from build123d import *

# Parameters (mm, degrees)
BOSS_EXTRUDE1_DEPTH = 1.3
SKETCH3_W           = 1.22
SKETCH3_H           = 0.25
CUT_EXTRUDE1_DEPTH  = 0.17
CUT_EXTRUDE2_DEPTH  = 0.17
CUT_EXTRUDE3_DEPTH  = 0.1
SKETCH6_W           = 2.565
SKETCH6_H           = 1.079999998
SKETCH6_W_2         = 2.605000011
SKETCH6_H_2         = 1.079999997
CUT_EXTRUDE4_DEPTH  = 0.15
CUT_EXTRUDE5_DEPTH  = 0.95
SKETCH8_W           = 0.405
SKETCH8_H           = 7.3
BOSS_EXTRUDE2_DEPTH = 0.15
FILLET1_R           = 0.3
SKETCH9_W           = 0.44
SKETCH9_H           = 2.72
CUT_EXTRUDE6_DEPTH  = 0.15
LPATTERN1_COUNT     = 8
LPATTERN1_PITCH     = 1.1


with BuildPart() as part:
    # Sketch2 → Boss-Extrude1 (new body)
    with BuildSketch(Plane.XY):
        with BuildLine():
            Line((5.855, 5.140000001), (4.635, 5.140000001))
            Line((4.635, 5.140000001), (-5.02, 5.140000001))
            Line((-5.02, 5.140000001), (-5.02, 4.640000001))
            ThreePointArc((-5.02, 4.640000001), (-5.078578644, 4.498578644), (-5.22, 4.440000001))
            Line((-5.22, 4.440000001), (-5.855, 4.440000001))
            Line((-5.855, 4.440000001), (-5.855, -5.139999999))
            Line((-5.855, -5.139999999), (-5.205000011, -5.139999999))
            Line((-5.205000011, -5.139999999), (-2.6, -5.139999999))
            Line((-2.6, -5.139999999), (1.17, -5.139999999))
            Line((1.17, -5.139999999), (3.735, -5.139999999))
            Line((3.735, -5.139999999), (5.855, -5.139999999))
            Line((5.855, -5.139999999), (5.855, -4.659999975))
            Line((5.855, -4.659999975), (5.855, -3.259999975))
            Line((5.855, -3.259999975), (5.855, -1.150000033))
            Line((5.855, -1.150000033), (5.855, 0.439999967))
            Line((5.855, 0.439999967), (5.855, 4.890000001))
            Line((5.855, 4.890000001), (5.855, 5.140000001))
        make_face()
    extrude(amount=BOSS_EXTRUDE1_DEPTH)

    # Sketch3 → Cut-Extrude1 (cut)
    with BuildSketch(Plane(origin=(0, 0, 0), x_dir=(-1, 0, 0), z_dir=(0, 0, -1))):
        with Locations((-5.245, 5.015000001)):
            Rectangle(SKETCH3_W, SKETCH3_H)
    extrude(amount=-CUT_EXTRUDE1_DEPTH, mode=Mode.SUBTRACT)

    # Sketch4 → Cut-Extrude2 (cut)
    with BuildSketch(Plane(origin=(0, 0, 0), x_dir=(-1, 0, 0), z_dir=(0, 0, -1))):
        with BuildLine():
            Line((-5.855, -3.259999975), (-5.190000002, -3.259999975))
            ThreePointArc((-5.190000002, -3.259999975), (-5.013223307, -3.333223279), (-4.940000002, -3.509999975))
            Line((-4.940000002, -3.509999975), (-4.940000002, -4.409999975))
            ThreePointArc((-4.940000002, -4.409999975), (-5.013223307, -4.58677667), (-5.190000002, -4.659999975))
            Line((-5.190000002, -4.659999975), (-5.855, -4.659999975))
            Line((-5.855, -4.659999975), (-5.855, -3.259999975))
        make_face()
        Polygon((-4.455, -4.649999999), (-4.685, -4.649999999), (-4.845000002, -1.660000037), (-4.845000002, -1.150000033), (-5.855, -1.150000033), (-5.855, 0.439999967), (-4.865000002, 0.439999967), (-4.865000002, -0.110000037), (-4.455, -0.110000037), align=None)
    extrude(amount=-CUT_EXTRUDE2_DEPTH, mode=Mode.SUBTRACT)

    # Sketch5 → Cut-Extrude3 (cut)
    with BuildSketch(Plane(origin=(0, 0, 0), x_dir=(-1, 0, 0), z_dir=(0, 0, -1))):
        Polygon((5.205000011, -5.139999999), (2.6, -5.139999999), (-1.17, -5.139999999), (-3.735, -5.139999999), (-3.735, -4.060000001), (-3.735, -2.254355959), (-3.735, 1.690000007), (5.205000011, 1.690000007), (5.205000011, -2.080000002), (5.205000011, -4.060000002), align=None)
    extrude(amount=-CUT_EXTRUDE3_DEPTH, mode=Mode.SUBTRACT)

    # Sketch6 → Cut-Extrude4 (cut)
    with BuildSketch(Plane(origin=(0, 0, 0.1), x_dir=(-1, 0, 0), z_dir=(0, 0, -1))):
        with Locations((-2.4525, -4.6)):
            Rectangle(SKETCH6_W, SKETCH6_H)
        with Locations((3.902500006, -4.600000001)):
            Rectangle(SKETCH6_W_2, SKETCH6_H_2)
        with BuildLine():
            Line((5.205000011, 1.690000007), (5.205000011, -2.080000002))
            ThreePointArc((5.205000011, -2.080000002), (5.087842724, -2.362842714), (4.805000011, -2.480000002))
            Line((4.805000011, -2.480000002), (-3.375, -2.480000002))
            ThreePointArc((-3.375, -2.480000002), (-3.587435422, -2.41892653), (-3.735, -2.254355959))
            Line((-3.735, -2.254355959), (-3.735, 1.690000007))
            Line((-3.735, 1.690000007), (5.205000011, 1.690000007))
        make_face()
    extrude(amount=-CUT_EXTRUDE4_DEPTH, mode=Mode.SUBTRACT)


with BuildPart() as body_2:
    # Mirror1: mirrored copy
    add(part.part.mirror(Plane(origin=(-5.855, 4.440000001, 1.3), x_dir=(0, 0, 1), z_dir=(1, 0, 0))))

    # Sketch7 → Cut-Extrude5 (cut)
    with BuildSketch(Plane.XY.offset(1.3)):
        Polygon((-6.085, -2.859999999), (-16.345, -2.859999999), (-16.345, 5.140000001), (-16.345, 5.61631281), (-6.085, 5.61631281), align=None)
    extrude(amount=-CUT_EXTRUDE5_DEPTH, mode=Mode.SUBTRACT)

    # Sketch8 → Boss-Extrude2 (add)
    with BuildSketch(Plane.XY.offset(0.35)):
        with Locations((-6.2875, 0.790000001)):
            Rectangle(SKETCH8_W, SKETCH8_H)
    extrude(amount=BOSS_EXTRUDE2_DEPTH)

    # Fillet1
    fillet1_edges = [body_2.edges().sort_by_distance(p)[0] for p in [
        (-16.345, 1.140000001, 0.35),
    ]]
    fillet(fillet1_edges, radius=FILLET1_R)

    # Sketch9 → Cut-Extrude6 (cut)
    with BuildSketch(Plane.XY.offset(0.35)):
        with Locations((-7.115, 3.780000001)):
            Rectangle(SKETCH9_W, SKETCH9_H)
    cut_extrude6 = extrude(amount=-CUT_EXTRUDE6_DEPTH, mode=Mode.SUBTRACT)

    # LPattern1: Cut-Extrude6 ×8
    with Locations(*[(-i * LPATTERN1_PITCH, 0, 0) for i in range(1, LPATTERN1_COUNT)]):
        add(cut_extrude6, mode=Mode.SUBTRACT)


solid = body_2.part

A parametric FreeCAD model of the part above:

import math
import FreeCAD as App
import Part
import Sketcher
Q = App.Units.Quantity


def edges_at(feature, points):
    """Names of the edges that pass closest to the given points."""
    edges = feature.Shape.Edges
    near = lambda p: min(range(len(edges)), key=lambda i: edges[i].distToShape(Part.Vertex(*p))[0])
    return sorted({f"Edge{near(p) + 1}" for p in points})

doc = App.newDocument("Part")
body = doc.addObject("PartDesign::Body", "Body")

sketch1 = doc.addObject("Sketcher::SketchObject", "Sketch")
body.addObject(sketch1)
sketch1.AttachmentSupport = (doc.XY_Plane, [""])
sketch1.MapMode = "FlatFace"
sketch1.addGeometry([
    Part.LineSegment(App.Vector(5.86, 5.14, 0), App.Vector(-5.02, 5.14, 0)),
    Part.LineSegment(App.Vector(-5.02, 5.14, 0), App.Vector(-5.02, 4.64, 0)),
    Part.ArcOfCircle(Part.Circle(App.Vector(-5.22, 4.64, 0), App.Vector(0, 0, 1), 0.2), math.radians(-90), math.radians(0)),
    Part.LineSegment(App.Vector(-5.22, 4.44, 0), App.Vector(-5.86, 4.44, 0)),
    Part.LineSegment(App.Vector(-5.86, 4.44, 0), App.Vector(-5.86, -5.14, 0)),
    Part.LineSegment(App.Vector(-5.86, -5.14, 0), App.Vector(5.86, -5.14, 0)),
    Part.LineSegment(App.Vector(5.86, -5.14, 0), App.Vector(5.86, 5.14, 0)),
], False)
sketch1.addConstraint([
    Sketcher.Constraint("Coincident", 0, 2, 1, 1),
    Sketcher.Constraint("Tangent", 1, 2, 2, 2),
    Sketcher.Constraint("Tangent", 2, 1, 3, 1),
    Sketcher.Constraint("Coincident", 3, 2, 4, 1),
    Sketcher.Constraint("Coincident", 4, 2, 5, 1),
    Sketcher.Constraint("Coincident", 5, 2, 6, 1),
    Sketcher.Constraint("Coincident", 6, 2, 0, 1),
    Sketcher.Constraint("Horizontal", 0),
    Sketcher.Constraint("Vertical", 1),
    Sketcher.Constraint("Horizontal", 3),
    Sketcher.Constraint("Vertical", 4),
    Sketcher.Constraint("Horizontal", 5),
    Sketcher.Constraint("Vertical", 6),
    Sketcher.Constraint("Symmetric", 4, 2, 6, 2, -1, 1),
    Sketcher.Constraint("Radius", 2, Q("0.2 mm")),
    Sketcher.Constraint("DistanceY", 1, 2, 1, 1, Q("0.5 mm")),
    Sketcher.Constraint("DistanceX", 5, 1, 5, 2, Q("11.71 mm")),
    Sketcher.Constraint("DistanceY", 4, 2, 4, 1, Q("9.58 mm")),
    Sketcher.Constraint("DistanceX", 0, 2, 0, 1, Q("10.875 mm")),
])
pad1 = doc.addObject("PartDesign::Pad", "Pad")
body.addObject(pad1)
pad1.Profile = sketch1
pad1.Length = 1.3

sketch2 = doc.addObject("Sketcher::SketchObject", "Sketch001")
body.addObject(sketch2)
sketch2.AttachmentSupport = (doc.XY_Plane, [""])
sketch2.MapMode = "FlatFace"
sketch2.addGeometry([
    Part.LineSegment(App.Vector(5.86, 5.14, 0), App.Vector(5.86, 4.89, 0)),
    Part.LineSegment(App.Vector(5.86, 4.89, 0), App.Vector(4.63, 4.89, 0)),
    Part.LineSegment(App.Vector(4.63, 4.89, 0), App.Vector(4.63, 5.14, 0)),
    Part.LineSegment(App.Vector(4.63, 5.14, 0), App.Vector(5.86, 5.14, 0)),
], False)
sketch2.addConstraint([
    Sketcher.Constraint("Coincident", 0, 2, 1, 1),
    Sketcher.Constraint("Coincident", 1, 2, 2, 1),
    Sketcher.Constraint("Coincident", 2, 2, 3, 1),
    Sketcher.Constraint("Coincident", 3, 2, 0, 1),
    Sketcher.Constraint("Vertical", 0),
    Sketcher.Constraint("Horizontal", 1),
    Sketcher.Constraint("Vertical", 2),
    Sketcher.Constraint("Horizontal", 3),
    Sketcher.Constraint("DistanceX", 1, 2, 1, 1, Q("1.22 mm")),
    Sketcher.Constraint("DistanceY", 0, 2, 0, 1, Q("0.25 mm")),
    Sketcher.Constraint("DistanceY", -1, 1, 0, 2, Q("4.89 mm")),
    Sketcher.Constraint("DistanceX", -1, 1, 0, 2, Q("5.855 mm")),
])
pocket1 = doc.addObject("PartDesign::Pocket", "Pocket")
body.addObject(pocket1)
pocket1.Profile = sketch2
pocket1.Length = 0.17
pocket1.Reversed = True

sketch3 = doc.addObject("Sketcher::SketchObject", "Sketch002")
body.addObject(sketch3)
sketch3.AttachmentSupport = (doc.XY_Plane, [""])
sketch3.MapMode = "FlatFace"
sketch3.addGeometry([
    Part.LineSegment(App.Vector(5.19, -3.26, 0), App.Vector(5.86, -3.26, 0)),
    Part.LineSegment(App.Vector(5.86, -3.26, 0), App.Vector(5.86, -4.66, 0)),
    Part.LineSegment(App.Vector(5.86, -4.66, 0), App.Vector(5.19, -4.66, 0)),
    Part.ArcOfCircle(Part.Circle(App.Vector(5.19, -4.41, 0), App.Vector(0, 0, 1), 0.25), math.radians(-180), math.radians(-90)),
    Part.LineSegment(App.Vector(4.94, -4.41, 0), App.Vector(4.94, -3.51, 0)),
    Part.ArcOfCircle(Part.Circle(App.Vector(5.19, -3.51, 0), App.Vector(0, 0, 1), 0.25), math.radians(90), math.radians(180)),
    Part.LineSegment(App.Vector(4.68, -4.65, 0), App.Vector(4.46, -4.65, 0)),
    Part.LineSegment(App.Vector(4.46, -4.65, 0), App.Vector(4.46, -0.11, 0)),
    Part.LineSegment(App.Vector(4.46, -0.11, 0), App.Vector(4.87, -0.11, 0)),
    Part.LineSegment(App.Vector(4.87, -0.11, 0), App.Vector(4.87, 0.44, 0)),
    Part.LineSegment(App.Vector(4.87, 0.44, 0), App.Vector(5.86, 0.44, 0)),
    Part.LineSegment(App.Vector(5.86, 0.44, 0), App.Vector(5.86, -1.15, 0)),
    Part.LineSegment(App.Vector(5.86, -1.15, 0), App.Vector(4.85, -1.15, 0)),
    Part.LineSegment(App.Vector(4.85, -1.15, 0), App.Vector(4.85, -1.66, 0)),
    Part.LineSegment(App.Vector(4.85, -1.66, 0), App.Vector(4.68, -4.65, 0)),
], False)
sketch3.addConstraint([
    Sketcher.Constraint("Coincident", 0, 2, 1, 1),
    Sketcher.Constraint("Coincident", 1, 2, 2, 1),
    Sketcher.Constraint("Tangent", 2, 2, 3, 2),
    Sketcher.Constraint("Tangent", 3, 1, 4, 1),
    Sketcher.Constraint("Tangent", 4, 2, 5, 2),
    Sketcher.Constraint("Tangent", 5, 1, 0, 1),
    Sketcher.Constraint("Coincident", 6, 2, 7, 1),
    Sketcher.Constraint("Coincident", 7, 2, 8, 1),
    Sketcher.Constraint("Coincident", 8, 2, 9, 1),
    Sketcher.Constraint("Coincident", 9, 2, 10, 1),
    Sketcher.Constraint("Coincident", 10, 2, 11, 1),
    Sketcher.Constraint("Coincident", 11, 2, 12, 1),
    Sketcher.Constraint("Coincident", 12, 2, 13, 1),
    Sketcher.Constraint("Coincident", 13, 2, 14, 1),
    Sketcher.Constraint("Coincident", 14, 2, 6, 1),
    Sketcher.Constraint("Horizontal", 0),
    Sketcher.Constraint("Vertical", 1),
    Sketcher.Constraint("Horizontal", 2),
    Sketcher.Constraint("Vertical", 4),
    Sketcher.Constraint("Horizontal", 6),
    Sketcher.Constraint("Vertical", 7),
    Sketcher.Constraint("Horizontal", 8),
    Sketcher.Constraint("Vertical", 9),
    Sketcher.Constraint("Horizontal", 10),
    Sketcher.Constraint("Vertical", 11),
    Sketcher.Constraint("Horizontal", 12),
    Sketcher.Constraint("Vertical", 13),
    Sketcher.Constraint("Equal", 3, 5),
    Sketcher.Constraint("Vertical", 1, 2, 10, 2),
    Sketcher.Constraint("Radius", 3, Q("0.25 mm")),
    Sketcher.Constraint("DistanceY", 1, 2, 1, 1, Q("1.4 mm")),
    Sketcher.Constraint("DistanceX", 6, 2, 6, 1, Q("0.23 mm")),
    Sketcher.Constraint("DistanceX", 8, 1, 8, 2, Q("0.41 mm")),
    Sketcher.Constraint("DistanceX", 10, 1, 10, 2, Q("0.99 mm")),
    Sketcher.Constraint("DistanceX", 12, 2, 12, 1, Q("1.01 mm")),
    Sketcher.Constraint("DistanceY", 7, 1, 7, 2, Q("4.54 mm")),
    Sketcher.Constraint("DistanceY", 9, 1, 9, 2, Q("0.55 mm")),
    Sketcher.Constraint("DistanceY", 11, 2, 11, 1, Q("1.59 mm")),
    Sketcher.Constraint("DistanceY", 13, 2, 13, 1, Q("0.51 mm")),
    Sketcher.Constraint("DistanceY", 4, 2, 7, 2, Q("3.4 mm")),
    Sketcher.Constraint("DistanceX", 0, 1, 0, 2, Q("0.665 mm")),
    Sketcher.Constraint("DistanceX", -1, 1, 3, 3, Q("5.19 mm")),
    Sketcher.Constraint("DistanceY", 3, 3, -1, 1, Q("4.41 mm")),
])
pocket2 = doc.addObject("PartDesign::Pocket", "Pocket001")
body.addObject(pocket2)
pocket2.Profile = sketch3
pocket2.Length = 0.17
pocket2.Reversed = True

sketch4 = doc.addObject("Sketcher::SketchObject", "Sketch003")
body.addObject(sketch4)
sketch4.AttachmentSupport = (doc.XY_Plane, [""])
sketch4.MapMode = "FlatFace"
sketch4.addGeometry([
    Part.LineSegment(App.Vector(4, -5, 0), App.Vector(-5, -5, 0)),
    Part.LineSegment(App.Vector(-5, -5, 0), App.Vector(-5, 2, 0)),
    Part.LineSegment(App.Vector(-5, 2, 0), App.Vector(4, 2, 0)),
    Part.LineSegment(App.Vector(4, 2, 0), App.Vector(4, -5, 0)),
], False)
sketch4.addConstraint([
    Sketcher.Constraint("Coincident", 0, 2, 1, 1),
    Sketcher.Constraint("Coincident", 1, 2, 2, 1),
    Sketcher.Constraint("Coincident", 2, 2, 3, 1),
    Sketcher.Constraint("Coincident", 3, 2, 0, 1),
    Sketcher.Constraint("Horizontal", 0),
    Sketcher.Constraint("Vertical", 1),
    Sketcher.Constraint("Horizontal", 2),
    Sketcher.Constraint("Vertical", 3),
    Sketcher.Constraint("DistanceX", 0, 2, 0, 1, Q("8.94 mm")),
    Sketcher.Constraint("DistanceY", 1, 1, 1, 2, Q("6.83 mm")),
    Sketcher.Constraint("DistanceY", 0, 2, -1, 1, Q("5.14 mm")),
    Sketcher.Constraint("DistanceX", 0, 2, -1, 1, Q("5.205 mm")),
])
pocket3 = doc.addObject("PartDesign::Pocket", "Pocket002")
body.addObject(pocket3)
pocket3.Profile = sketch4
pocket3.Length = 0.1
pocket3.Reversed = True

sketch5 = doc.addObject("Sketcher::SketchObject", "Sketch004")
body.addObject(sketch5)
sketch5.AttachmentSupport = (doc.XY_Plane, [""])
sketch5.MapMode = "FlatFace"
sketch5.AttachmentOffset = App.Placement(App.Vector(0, 0, 0.1), App.Rotation())
sketch5.addGeometry([
    Part.LineSegment(App.Vector(3.73, -4.06, 0), App.Vector(3.73, -5.14, 0)),
    Part.LineSegment(App.Vector(3.73, -5.14, 0), App.Vector(1.17, -5.14, 0)),
    Part.LineSegment(App.Vector(1.17, -5.14, 0), App.Vector(1.17, -4.06, 0)),
    Part.LineSegment(App.Vector(1.17, -4.06, 0), App.Vector(3.73, -4.06, 0)),
    Part.LineSegment(App.Vector(-2.6, -4.06, 0), App.Vector(-2.6, -5.14, 0)),
    Part.LineSegment(App.Vector(-2.6, -5.14, 0), App.Vector(-5.21, -5.14, 0)),
    Part.LineSegment(App.Vector(-5.21, -5.14, 0), App.Vector(-5.21, -4.06, 0)),
    Part.LineSegment(App.Vector(-5.21, -4.06, 0), App.Vector(-2.6, -4.06, 0)),
    Part.LineSegment(App.Vector(-5.21, -2.08, 0), App.Vector(-5.21, 1.69, 0)),
    Part.LineSegment(App.Vector(-5.21, 1.69, 0), App.Vector(3.73, 1.69, 0)),
    Part.LineSegment(App.Vector(3.73, 1.69, 0), App.Vector(3.73, -2.25, 0)),
    Part.ArcOfCircle(Part.Circle(App.Vector(3.38, -2.08, 0), App.Vector(0, 0, 1), 0.4), math.radians(-90), math.radians(-26)),
    Part.LineSegment(App.Vector(3.38, -2.48, 0), App.Vector(-4.81, -2.48, 0)),
    Part.ArcOfCircle(Part.Circle(App.Vector(-4.81, -2.08, 0), App.Vector(0, 0, 1), 0.4), math.radians(180), math.radians(270)),
], False)
sketch5.addConstraint([
    Sketcher.Constraint("Coincident", 0, 2, 1, 1),
    Sketcher.Constraint("Coincident", 1, 2, 2, 1),
    Sketcher.Constraint("Coincident", 2, 2, 3, 1),
    Sketcher.Constraint("Coincident", 3, 2, 0, 1),
    Sketcher.Constraint("Coincident", 4, 2, 5, 1),
    Sketcher.Constraint("Coincident", 5, 2, 6, 1),
    Sketcher.Constraint("Coincident", 6, 2, 7, 1),
    Sketcher.Constraint("Coincident", 7, 2, 4, 1),
    Sketcher.Constraint("Coincident", 8, 2, 9, 1),
    Sketcher.Constraint("Coincident", 9, 2, 10, 1),
    Sketcher.Constraint("Coincident", 10, 2, 11, 2),
    Sketcher.Constraint("Tangent", 11, 1, 12, 1),
    Sketcher.Constraint("Tangent", 12, 2, 13, 2),
    Sketcher.Constraint("Tangent", 13, 1, 8, 1),
    Sketcher.Constraint("Vertical", 0),
    Sketcher.Constraint("Horizontal", 1),
    Sketcher.Constraint("Vertical", 2),
    Sketcher.Constraint("Horizontal", 3),
    Sketcher.Constraint("Vertical", 4),
    Sketcher.Constraint("Horizontal", 5),
    Sketcher.Constraint("Vertical", 6),
    Sketcher.Constraint("Horizontal", 7),
    Sketcher.Constraint("Vertical", 8),
    Sketcher.Constraint("Horizontal", 9),
    Sketcher.Constraint("Vertical", 10),
    Sketcher.Constraint("Horizontal", 12),
    Sketcher.Constraint("Equal", 11, 13),
    Sketcher.Constraint("Horizontal", 1, 2, 4, 2),
    Sketcher.Constraint("Horizontal", 3, 2, 6, 2),
    Sketcher.Constraint("Vertical", 6, 2, 8, 2),
    Sketcher.Constraint("Vertical", 3, 2, 9, 2),
    Sketcher.Constraint("Radius", 11, Q("0.4 mm")),
    Sketcher.Constraint("DistanceX", 9, 1, 9, 2, Q("8.94 mm")),
    Sketcher.Constraint("DistanceX", 12, 2, 12, 1, Q("8.18 mm")),
    Sketcher.Constraint("DistanceY", 0, 2, 0, 1, Q("1.08 mm")),
    Sketcher.Constraint("DistanceY", 8, 1, 8, 2, Q("3.77 mm")),
    Sketcher.Constraint("DistanceX", 4, 2, -1, 1, Q("2.6 mm")),
    Sketcher.Constraint("DistanceX", 1, 2, 1, 1, Q("2.565 mm")),
    Sketcher.Constraint("DistanceX", 5, 2, 5, 1, Q("2.605 mm")),
    Sketcher.Constraint("DistanceY", 11, 3, -1, 1, Q("2.08 mm")),
    Sketcher.Constraint("DistanceY", 0, 2, -1, 1, Q("5.14 mm")),
])
pocket4 = doc.addObject("PartDesign::Pocket", "Pocket003")
body.addObject(pocket4)
pocket4.Profile = sketch5
pocket4.Length = 0.15
pocket4.Reversed = True
body2 = doc.addObject("PartDesign::Body", "Body001")
doc.recompute()

mirroring = doc.addObject("Part::Mirroring", "Mirroring")
mirroring.Source = body
mirroring.Base = App.Vector(-5.855, 4.44, 1.3)
mirroring.Normal = App.Vector(1, 0, 0)
body2.BaseFeature = mirroring
doc.recompute()

sketch6 = doc.addObject("Sketcher::SketchObject", "Sketch005")
body2.addObject(sketch6)
sketch6.AttachmentSupport = (doc.getObject("XY_Plane001"), [""])
sketch6.MapMode = "FlatFace"
sketch6.AttachmentOffset = App.Placement(App.Vector(0, 0, 1.3), App.Rotation())
sketch6.addGeometry([
    Part.LineSegment(App.Vector(-16, -3, 0), App.Vector(-6, -3, 0)),
    Part.LineSegment(App.Vector(-6, -3, 0), App.Vector(-6, 6, 0)),
    Part.LineSegment(App.Vector(-6, 6, 0), App.Vector(-16, 6, 0)),
    Part.LineSegment(App.Vector(-16, 6, 0), App.Vector(-16, -3, 0)),
], False)
sketch6.addConstraint([
    Sketcher.Constraint("Coincident", 0, 2, 1, 1),
    Sketcher.Constraint("Coincident", 1, 2, 2, 1),
    Sketcher.Constraint("Coincident", 2, 2, 3, 1),
    Sketcher.Constraint("Coincident", 3, 2, 0, 1),
    Sketcher.Constraint("Horizontal", 0),
    Sketcher.Constraint("Vertical", 1),
    Sketcher.Constraint("Horizontal", 2),
    Sketcher.Constraint("Vertical", 3),
    Sketcher.Constraint("DistanceX", 0, 1, 0, 2, Q("10.26 mm")),
    Sketcher.Constraint("DistanceY", 0, 2, -1, 1, Q("2.86 mm")),
    Sketcher.Constraint("DistanceX", 0, 2, -1, 1, Q("6.085 mm")),
    Sketcher.Constraint("DistanceY", 1, 1, 1, 2, Q("8.476313 mm")),
])
pocket5 = doc.addObject("PartDesign::Pocket", "Pocket004")
body2.addObject(pocket5)
pocket5.Profile = sketch6
pocket5.Length = 0.95

sketch7 = doc.addObject("Sketcher::SketchObject", "Sketch006")
body2.addObject(sketch7)
sketch7.AttachmentSupport = (doc.getObject("XY_Plane001"), [""])
sketch7.MapMode = "FlatFace"
sketch7.AttachmentOffset = App.Placement(App.Vector(0, 0, 0.35), App.Rotation())
sketch7.addGeometry([
    Part.LineSegment(App.Vector(-6.49, 4.44, 0), App.Vector(-6.49, -2.86, 0)),
    Part.LineSegment(App.Vector(-6.49, -2.86, 0), App.Vector(-6.08, -2.86, 0)),
    Part.LineSegment(App.Vector(-6.08, -2.86, 0), App.Vector(-6.08, 4.44, 0)),
    Part.LineSegment(App.Vector(-6.08, 4.44, 0), App.Vector(-6.49, 4.44, 0)),
], False)
sketch7.addConstraint([
    Sketcher.Constraint("Coincident", 0, 2, 1, 1),
    Sketcher.Constraint("Coincident", 1, 2, 2, 1),
    Sketcher.Constraint("Coincident", 2, 2, 3, 1),
    Sketcher.Constraint("Coincident", 3, 2, 0, 1),
    Sketcher.Constraint("Vertical", 0),
    Sketcher.Constraint("Horizontal", 1),
    Sketcher.Constraint("Vertical", 2),
    Sketcher.Constraint("Horizontal", 3),
    Sketcher.Constraint("DistanceY", 0, 2, 0, 1, Q("7.3 mm")),
    Sketcher.Constraint("DistanceX", 1, 1, 1, 2, Q("0.405 mm")),
    Sketcher.Constraint("DistanceX", 0, 2, -1, 1, Q("6.49 mm")),
    Sketcher.Constraint("DistanceY", 0, 2, -1, 1, Q("2.86 mm")),
])
pad2 = doc.addObject("PartDesign::Pad", "Pad001")
body2.addObject(pad2)
pad2.Profile = sketch7
pad2.Length = 0.15
doc.recompute()

fillet = doc.addObject("PartDesign::Fillet", "Fillet")
body2.addObject(fillet)
fillet.Base = (pad2, edges_at(pad2, [(-16.345, 1.14, 0.35)]))
fillet.Radius = 0.3

sketch8 = doc.addObject("Sketcher::SketchObject", "Sketch007")
body2.addObject(sketch8)
sketch8.AttachmentSupport = (doc.getObject("XY_Plane001"), [""])
sketch8.MapMode = "FlatFace"
sketch8.AttachmentOffset = App.Placement(App.Vector(0, 0, 0.35), App.Rotation())
sketch8.addGeometry([
    Part.LineSegment(App.Vector(-7.33, 5.14, 0), App.Vector(-7.33, 2.42, 0)),
    Part.LineSegment(App.Vector(-7.33, 2.42, 0), App.Vector(-6.89, 2.42, 0)),
    Part.LineSegment(App.Vector(-6.89, 2.42, 0), App.Vector(-6.89, 5.14, 0)),
    Part.LineSegment(App.Vector(-6.89, 5.14, 0), App.Vector(-7.33, 5.14, 0)),
], False)
sketch8.addConstraint([
    Sketcher.Constraint("Coincident", 0, 2, 1, 1),
    Sketcher.Constraint("Coincident", 1, 2, 2, 1),
    Sketcher.Constraint("Coincident", 2, 2, 3, 1),
    Sketcher.Constraint("Coincident", 3, 2, 0, 1),
    Sketcher.Constraint("Vertical", 0),
    Sketcher.Constraint("Horizontal", 1),
    Sketcher.Constraint("Vertical", 2),
    Sketcher.Constraint("Horizontal", 3),
    Sketcher.Constraint("DistanceX", 1, 1, 1, 2, Q("0.44 mm")),
    Sketcher.Constraint("DistanceY", 0, 2, 0, 1, Q("2.72 mm")),
    Sketcher.Constraint("DistanceY", -1, 1, 0, 2, Q("2.42 mm")),
    Sketcher.Constraint("DistanceX", 0, 2, -1, 1, Q("7.335 mm")),
])
pocket6 = doc.addObject("PartDesign::Pocket", "Pocket005")
body2.addObject(pocket6)
pocket6.Profile = sketch8
pocket6.Length = 0.15
doc.recompute()

linearpattern = doc.addObject("PartDesign::LinearPattern", "LinearPattern")
body2.addObject(linearpattern)
linearpattern.Originals = [pocket6]
linearpattern.Direction = (doc.getObject("X_Axis001"), [""])
linearpattern.Mode = "offset"
linearpattern.Offset = 1.1
linearpattern.Occurrences = 8
linearpattern.Reversed = True
body2.Tip = linearpattern
body.Visibility = False
mirroring.Visibility = False

doc.recompute()
